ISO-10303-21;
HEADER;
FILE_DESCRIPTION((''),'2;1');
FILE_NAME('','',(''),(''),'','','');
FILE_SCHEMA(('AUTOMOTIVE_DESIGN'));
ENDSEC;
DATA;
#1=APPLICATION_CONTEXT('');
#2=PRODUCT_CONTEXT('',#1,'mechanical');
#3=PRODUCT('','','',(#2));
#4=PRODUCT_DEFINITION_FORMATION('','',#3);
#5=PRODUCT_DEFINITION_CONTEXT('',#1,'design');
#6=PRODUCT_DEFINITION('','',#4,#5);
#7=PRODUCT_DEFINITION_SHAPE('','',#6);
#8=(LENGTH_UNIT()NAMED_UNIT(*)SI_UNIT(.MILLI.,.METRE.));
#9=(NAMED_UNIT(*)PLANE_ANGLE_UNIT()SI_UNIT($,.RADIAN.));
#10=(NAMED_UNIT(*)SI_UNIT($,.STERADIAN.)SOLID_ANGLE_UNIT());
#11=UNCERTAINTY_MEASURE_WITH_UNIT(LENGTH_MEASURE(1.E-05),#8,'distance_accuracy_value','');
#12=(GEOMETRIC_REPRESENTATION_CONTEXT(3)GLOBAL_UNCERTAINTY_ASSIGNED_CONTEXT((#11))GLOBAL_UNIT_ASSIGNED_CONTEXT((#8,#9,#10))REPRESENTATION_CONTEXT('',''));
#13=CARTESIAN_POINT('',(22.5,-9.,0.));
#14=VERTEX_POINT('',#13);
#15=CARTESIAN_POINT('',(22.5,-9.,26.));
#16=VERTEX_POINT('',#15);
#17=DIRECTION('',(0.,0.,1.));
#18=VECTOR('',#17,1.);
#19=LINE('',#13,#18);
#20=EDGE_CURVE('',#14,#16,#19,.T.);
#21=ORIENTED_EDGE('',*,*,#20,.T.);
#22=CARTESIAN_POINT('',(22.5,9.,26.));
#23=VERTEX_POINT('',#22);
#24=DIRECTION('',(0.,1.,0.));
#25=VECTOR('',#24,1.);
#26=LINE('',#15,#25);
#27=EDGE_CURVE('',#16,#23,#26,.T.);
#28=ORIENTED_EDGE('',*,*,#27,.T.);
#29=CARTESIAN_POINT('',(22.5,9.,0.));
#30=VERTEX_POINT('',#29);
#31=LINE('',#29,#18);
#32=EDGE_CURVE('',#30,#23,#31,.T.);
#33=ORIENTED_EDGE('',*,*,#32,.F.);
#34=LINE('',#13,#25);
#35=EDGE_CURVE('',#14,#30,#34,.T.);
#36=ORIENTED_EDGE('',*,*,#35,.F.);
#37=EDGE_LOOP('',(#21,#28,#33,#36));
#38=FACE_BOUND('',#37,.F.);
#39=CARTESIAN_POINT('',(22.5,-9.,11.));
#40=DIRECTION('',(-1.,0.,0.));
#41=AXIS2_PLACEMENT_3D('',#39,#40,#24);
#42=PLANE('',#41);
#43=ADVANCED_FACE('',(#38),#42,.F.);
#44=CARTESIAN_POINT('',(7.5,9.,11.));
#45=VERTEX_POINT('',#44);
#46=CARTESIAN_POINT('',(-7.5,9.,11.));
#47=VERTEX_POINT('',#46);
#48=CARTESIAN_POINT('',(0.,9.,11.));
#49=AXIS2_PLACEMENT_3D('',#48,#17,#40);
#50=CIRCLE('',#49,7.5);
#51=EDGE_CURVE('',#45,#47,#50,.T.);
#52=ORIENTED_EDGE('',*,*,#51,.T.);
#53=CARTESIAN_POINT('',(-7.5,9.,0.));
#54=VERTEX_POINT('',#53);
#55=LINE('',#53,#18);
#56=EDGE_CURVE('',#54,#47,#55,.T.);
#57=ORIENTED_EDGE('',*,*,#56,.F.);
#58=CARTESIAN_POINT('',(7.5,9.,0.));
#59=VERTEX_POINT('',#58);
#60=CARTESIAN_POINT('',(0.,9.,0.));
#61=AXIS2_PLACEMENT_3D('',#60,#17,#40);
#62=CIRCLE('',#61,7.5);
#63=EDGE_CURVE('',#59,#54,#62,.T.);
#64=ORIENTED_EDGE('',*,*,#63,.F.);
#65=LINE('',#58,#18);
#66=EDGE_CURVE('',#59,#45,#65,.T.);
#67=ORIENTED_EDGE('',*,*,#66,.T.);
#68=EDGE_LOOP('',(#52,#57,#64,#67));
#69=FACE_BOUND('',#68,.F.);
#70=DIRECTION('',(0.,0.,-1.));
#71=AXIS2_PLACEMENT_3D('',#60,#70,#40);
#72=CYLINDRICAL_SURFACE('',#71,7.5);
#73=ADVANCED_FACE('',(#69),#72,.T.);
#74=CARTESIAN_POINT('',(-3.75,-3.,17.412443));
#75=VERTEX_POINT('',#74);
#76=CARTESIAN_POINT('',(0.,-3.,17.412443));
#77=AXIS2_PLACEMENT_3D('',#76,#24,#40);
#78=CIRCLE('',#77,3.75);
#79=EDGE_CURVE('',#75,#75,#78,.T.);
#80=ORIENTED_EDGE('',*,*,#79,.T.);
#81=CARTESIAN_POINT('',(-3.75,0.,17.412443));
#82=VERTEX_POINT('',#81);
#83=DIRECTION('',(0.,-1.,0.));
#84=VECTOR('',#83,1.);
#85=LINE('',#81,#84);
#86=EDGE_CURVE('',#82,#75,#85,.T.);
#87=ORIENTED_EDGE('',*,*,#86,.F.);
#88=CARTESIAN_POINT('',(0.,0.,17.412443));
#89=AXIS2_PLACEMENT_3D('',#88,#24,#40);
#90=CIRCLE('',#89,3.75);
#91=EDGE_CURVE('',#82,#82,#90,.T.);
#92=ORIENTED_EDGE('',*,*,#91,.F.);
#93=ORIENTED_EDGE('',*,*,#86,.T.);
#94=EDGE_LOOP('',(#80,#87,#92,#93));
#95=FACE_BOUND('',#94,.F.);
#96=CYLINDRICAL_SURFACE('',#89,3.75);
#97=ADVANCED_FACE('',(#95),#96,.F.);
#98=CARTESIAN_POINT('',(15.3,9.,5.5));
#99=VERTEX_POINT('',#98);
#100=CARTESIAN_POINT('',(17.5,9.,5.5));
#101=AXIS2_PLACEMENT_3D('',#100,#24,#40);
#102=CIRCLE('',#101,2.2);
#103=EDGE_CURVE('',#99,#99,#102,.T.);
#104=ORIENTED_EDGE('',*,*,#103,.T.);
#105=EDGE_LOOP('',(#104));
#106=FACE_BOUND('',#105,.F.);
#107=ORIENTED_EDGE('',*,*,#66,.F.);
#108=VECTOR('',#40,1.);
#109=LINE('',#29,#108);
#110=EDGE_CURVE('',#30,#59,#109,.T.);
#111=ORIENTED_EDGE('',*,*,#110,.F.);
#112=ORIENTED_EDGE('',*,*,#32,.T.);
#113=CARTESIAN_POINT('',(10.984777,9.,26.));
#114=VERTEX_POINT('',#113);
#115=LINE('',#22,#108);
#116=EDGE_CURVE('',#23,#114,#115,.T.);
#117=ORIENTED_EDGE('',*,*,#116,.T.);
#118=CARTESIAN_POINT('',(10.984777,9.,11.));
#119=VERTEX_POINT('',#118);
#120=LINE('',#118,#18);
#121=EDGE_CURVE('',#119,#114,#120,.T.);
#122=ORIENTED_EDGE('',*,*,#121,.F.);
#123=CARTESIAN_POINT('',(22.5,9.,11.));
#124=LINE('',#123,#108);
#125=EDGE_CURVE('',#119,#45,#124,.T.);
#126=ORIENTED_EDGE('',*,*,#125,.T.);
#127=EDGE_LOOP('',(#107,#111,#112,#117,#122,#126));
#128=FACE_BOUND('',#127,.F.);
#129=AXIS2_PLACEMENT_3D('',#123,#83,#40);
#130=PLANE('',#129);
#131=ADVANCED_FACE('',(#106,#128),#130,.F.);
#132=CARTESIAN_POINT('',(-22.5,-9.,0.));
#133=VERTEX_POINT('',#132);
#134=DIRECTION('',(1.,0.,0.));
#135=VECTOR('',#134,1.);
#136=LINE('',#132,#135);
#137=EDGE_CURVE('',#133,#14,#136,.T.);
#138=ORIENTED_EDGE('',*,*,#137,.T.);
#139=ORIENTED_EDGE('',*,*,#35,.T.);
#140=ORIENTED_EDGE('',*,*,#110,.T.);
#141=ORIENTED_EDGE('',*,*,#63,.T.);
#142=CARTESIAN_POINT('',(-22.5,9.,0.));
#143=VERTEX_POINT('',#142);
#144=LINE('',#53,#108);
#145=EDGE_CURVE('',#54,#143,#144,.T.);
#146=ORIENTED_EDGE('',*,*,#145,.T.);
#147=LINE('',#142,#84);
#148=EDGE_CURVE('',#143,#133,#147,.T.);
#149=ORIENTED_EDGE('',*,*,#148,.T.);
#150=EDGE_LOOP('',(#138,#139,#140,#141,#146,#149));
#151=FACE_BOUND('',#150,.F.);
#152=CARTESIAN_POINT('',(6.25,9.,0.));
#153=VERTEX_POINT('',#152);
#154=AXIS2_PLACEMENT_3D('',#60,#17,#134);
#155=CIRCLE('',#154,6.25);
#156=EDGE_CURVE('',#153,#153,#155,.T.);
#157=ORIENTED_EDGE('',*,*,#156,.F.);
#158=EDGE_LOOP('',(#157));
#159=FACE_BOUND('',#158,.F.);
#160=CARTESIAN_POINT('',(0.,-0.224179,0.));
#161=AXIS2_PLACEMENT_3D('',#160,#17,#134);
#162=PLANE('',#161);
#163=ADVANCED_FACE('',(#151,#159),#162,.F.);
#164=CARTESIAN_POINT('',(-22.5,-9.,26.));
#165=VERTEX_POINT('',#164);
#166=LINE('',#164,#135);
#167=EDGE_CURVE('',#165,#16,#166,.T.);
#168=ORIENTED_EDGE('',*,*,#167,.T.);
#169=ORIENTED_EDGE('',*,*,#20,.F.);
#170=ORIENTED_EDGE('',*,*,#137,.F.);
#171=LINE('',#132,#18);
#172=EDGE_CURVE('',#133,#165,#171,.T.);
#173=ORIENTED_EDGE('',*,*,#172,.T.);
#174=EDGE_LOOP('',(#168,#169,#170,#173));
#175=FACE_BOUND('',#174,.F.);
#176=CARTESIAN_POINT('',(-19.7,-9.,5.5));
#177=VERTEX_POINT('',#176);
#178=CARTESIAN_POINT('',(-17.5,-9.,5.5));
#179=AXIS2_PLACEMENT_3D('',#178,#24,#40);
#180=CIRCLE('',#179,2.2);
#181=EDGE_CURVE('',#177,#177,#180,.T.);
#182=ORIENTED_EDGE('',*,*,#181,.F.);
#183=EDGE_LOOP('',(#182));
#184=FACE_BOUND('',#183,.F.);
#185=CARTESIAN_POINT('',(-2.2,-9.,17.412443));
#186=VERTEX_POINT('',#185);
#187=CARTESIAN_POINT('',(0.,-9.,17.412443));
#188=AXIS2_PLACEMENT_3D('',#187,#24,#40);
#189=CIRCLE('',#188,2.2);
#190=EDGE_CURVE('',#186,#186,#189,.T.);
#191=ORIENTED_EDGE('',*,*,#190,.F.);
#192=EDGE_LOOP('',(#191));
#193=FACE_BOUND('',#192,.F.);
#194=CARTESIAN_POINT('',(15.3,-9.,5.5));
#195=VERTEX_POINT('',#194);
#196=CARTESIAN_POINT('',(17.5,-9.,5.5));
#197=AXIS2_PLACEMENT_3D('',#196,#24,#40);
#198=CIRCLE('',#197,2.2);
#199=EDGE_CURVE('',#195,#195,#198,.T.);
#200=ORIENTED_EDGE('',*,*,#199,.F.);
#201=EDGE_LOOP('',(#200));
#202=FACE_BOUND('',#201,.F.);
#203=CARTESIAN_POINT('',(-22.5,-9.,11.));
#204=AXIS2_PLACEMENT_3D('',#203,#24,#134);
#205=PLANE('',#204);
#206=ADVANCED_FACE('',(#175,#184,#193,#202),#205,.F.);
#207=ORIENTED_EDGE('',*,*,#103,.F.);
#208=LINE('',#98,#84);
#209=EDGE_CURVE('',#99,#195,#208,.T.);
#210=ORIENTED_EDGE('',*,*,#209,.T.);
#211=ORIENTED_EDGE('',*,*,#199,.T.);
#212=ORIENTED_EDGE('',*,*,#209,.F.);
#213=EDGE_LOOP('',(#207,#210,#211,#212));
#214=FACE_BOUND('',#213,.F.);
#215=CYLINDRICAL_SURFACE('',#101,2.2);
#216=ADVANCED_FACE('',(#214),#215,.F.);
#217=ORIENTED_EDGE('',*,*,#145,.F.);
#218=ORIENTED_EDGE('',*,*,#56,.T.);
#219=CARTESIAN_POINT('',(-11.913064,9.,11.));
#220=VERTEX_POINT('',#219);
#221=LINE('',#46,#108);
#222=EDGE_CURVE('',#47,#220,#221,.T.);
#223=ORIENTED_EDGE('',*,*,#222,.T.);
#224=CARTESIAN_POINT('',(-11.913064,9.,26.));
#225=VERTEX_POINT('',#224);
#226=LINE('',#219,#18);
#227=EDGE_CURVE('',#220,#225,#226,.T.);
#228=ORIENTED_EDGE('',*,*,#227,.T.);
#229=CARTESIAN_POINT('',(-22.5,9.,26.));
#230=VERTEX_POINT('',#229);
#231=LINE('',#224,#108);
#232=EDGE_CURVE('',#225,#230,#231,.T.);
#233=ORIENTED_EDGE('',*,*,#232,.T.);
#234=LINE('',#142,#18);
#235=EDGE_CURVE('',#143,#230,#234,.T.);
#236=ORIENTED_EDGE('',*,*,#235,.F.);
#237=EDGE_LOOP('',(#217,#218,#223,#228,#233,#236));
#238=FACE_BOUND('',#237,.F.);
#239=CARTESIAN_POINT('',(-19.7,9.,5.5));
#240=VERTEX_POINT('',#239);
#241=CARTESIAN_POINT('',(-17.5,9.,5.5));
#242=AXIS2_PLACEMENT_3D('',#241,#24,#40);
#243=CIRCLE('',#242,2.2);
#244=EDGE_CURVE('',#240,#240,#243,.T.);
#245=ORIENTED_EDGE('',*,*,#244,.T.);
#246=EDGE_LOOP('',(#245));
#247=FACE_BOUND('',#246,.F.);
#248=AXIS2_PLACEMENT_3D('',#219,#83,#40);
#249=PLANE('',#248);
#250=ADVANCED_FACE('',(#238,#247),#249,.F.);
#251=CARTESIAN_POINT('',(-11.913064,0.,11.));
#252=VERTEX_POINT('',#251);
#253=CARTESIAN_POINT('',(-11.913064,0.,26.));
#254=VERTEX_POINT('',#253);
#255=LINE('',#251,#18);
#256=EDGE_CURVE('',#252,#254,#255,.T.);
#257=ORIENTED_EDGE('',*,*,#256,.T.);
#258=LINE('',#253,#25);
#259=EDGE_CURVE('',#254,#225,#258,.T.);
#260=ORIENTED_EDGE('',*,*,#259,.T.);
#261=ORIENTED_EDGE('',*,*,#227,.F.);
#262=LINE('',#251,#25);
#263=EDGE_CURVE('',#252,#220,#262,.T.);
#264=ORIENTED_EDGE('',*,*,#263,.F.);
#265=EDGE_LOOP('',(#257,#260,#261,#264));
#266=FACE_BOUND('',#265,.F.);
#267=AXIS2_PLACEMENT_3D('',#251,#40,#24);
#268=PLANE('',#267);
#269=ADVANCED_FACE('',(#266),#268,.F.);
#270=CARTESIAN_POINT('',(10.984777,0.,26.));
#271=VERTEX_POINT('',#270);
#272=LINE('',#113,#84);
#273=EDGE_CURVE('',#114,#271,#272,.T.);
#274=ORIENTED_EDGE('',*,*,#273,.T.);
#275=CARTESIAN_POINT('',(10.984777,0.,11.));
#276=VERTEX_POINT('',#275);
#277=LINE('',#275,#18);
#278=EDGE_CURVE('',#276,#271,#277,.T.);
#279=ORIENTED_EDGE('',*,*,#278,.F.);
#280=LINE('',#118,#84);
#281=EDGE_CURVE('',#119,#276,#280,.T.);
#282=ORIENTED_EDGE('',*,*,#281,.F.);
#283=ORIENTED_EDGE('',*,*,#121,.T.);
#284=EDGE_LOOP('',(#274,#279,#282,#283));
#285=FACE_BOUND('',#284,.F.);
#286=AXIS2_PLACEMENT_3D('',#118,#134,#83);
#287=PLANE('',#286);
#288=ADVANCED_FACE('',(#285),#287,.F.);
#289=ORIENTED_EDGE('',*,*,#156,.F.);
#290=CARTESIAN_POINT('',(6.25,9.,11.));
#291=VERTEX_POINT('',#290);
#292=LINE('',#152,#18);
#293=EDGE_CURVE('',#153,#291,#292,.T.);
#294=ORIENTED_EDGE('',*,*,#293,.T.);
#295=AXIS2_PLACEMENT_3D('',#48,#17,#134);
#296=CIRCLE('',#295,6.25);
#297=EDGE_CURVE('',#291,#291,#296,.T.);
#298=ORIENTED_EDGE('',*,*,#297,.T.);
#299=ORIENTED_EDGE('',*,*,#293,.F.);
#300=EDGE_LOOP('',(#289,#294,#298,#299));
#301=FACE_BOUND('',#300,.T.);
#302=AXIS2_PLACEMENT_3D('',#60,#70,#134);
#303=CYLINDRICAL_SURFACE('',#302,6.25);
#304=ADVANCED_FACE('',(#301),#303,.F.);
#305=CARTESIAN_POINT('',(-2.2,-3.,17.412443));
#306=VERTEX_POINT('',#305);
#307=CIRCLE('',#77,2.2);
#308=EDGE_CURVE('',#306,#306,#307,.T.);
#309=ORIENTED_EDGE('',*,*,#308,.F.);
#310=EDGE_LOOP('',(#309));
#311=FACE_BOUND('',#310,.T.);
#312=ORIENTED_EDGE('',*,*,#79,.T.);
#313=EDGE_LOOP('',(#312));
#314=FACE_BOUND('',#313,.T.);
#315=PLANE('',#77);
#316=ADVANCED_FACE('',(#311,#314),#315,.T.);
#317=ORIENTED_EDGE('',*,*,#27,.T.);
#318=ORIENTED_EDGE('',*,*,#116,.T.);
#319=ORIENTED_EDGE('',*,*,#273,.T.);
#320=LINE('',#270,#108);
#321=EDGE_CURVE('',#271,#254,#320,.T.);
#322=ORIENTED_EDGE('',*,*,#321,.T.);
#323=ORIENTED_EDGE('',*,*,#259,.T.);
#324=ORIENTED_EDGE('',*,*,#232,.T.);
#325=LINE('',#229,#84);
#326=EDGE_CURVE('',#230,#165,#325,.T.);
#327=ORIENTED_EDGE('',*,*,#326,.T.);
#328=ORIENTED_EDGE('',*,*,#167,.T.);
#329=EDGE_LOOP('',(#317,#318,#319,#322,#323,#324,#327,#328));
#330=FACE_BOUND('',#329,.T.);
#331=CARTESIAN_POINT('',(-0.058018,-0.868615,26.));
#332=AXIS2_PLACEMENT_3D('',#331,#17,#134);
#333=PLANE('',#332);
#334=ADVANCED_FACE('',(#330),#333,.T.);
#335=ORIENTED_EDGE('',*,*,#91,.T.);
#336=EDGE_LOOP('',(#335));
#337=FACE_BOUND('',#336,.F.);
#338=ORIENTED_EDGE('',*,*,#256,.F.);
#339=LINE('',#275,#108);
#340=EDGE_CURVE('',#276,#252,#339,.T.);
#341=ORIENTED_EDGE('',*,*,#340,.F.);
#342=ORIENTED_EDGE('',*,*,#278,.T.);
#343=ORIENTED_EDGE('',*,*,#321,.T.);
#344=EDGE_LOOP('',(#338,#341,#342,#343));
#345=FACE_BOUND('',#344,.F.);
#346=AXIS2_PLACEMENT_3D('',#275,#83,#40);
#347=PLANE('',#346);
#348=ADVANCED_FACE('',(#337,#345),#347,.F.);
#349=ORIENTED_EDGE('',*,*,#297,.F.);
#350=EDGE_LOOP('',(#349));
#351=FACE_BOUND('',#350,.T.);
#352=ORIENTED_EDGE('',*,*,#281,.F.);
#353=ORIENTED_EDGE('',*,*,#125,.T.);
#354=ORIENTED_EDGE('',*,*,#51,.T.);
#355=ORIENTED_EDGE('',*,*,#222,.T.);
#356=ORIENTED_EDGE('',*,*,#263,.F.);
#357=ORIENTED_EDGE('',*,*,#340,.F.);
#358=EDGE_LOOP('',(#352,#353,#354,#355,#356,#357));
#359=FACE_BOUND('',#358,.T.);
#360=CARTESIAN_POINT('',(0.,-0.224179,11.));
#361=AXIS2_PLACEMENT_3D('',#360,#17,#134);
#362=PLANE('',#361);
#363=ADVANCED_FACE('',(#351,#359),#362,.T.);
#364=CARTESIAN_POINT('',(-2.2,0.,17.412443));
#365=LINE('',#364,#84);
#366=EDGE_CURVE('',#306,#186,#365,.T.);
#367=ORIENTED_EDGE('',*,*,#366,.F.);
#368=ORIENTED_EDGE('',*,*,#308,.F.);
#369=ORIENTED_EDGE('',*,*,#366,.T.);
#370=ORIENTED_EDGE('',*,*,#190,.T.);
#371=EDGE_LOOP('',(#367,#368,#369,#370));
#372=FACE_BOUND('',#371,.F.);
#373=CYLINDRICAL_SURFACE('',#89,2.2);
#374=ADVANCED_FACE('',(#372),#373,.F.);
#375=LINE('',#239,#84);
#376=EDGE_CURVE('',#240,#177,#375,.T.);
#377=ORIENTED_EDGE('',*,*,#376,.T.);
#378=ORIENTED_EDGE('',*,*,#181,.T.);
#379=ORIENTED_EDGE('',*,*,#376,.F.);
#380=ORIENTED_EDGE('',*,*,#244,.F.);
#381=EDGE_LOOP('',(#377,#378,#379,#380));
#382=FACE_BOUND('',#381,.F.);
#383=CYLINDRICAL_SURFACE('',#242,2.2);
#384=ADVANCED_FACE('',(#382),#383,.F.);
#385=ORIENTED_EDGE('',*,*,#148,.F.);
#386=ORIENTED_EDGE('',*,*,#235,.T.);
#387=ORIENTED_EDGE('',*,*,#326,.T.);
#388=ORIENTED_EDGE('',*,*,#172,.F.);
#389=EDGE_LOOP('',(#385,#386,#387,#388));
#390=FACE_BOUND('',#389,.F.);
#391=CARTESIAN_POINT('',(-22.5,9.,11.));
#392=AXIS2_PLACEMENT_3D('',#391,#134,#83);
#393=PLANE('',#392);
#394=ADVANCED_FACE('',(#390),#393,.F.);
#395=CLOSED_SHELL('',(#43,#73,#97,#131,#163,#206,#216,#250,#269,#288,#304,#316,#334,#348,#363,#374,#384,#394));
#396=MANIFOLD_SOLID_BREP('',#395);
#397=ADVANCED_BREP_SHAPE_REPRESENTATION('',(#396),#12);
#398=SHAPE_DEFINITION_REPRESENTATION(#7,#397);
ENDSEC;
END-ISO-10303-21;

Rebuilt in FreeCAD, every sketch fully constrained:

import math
import FreeCAD as App
import Part
import Sketcher

V = App.Vector


def add_polygon(sketch, points):
    """Adds a closed chain of lines whose ends are joined by coincident constraints."""
    first, n = sketch.GeometryCount, len(points)
    for a, b in zip(points, points[1:] + points[:1]):
        sketch.addGeometry(Part.LineSegment(App.Vector(*a, 0), App.Vector(*b, 0)), False)
    for i in range(n):
        sketch.addConstraint(Sketcher.Constraint("Coincident", first + i, 2, first + (i + 1) % n, 1))

doc = App.newDocument("Part")
body = doc.addObject("PartDesign::Body", "Body")

# Sketch on XY plane
sketch1 = doc.addObject("Sketcher::SketchObject", "Sketch")
body.addObject(sketch1)
sketch1.AttachmentSupport = (doc.XY_Plane, [""])
sketch1.MapMode = "FlatFace"
sketch1.addGeometry(Part.LineSegment(V(-8, 9, 0), V(-22, 9, 0)), False)
sketch1.addGeometry(Part.LineSegment(V(-22, 9, 0), V(-22, -9, 0)), False)
sketch1.addGeometry(Part.LineSegment(V(-22, -9, 0), V(22, -9, 0)), False)
sketch1.addGeometry(Part.LineSegment(V(22, -9, 0), V(22, 9, 0)), False)
sketch1.addGeometry(Part.LineSegment(V(22, 9, 0), V(8, 9, 0)), False)
sketch1.addGeometry(Part.ArcOfCircle(Part.Circle(V(0, 9, 0), V(0, 0, 1), 8), math.radians(0), math.radians(180)), False)
sketch1.addGeometry(Part.Circle(V(0, 9, 0), V(0, 0, 1), 6), False)
sketch1.addConstraint(Sketcher.Constraint("Coincident", 0, 2, 1, 1))
sketch1.addConstraint(Sketcher.Constraint("Coincident", 1, 2, 2, 1))
sketch1.addConstraint(Sketcher.Constraint("Coincident", 2, 2, 3, 1))
sketch1.addConstraint(Sketcher.Constraint("Coincident", 3, 2, 4, 1))
sketch1.addConstraint(Sketcher.Constraint("Coincident", 4, 2, 5, 1))
sketch1.addConstraint(Sketcher.Constraint("Coincident", 5, 2, 0, 1))
sketch1.addConstraint(Sketcher.Constraint("Horizontal", 0))
sketch1.addConstraint(Sketcher.Constraint("Vertical", 1))
sketch1.addConstraint(Sketcher.Constraint("Horizontal", 2))
sketch1.addConstraint(Sketcher.Constraint("Vertical", 3))
sketch1.addConstraint(Sketcher.Constraint("Horizontal", 4))
sketch1.addConstraint(Sketcher.Constraint("Coincident", 6, 3, 5, 3))
sketch1.addConstraint(Sketcher.Constraint("Symmetric", 0, 2, 2, 2, -1, 1))
sketch1.addConstraint(Sketcher.Constraint("Symmetric", 4, 2, 5, 2, -2))
sketch1.addConstraint(Sketcher.Constraint("Horizontal", 6, 3, 0, 2))
sketch1.addConstraint(Sketcher.Constraint("Diameter", 6, 12.5))
sketch1.addConstraint(Sketcher.Constraint("Radius", 5, 7.5))
sketch1.addConstraint(Sketcher.Constraint("DistanceX", 0, 2, 0, 1, 15.0))
sketch1.addConstraint(Sketcher.Constraint("DistanceY", 1, 2, 1, 1, 18.0))
pad1 = doc.addObject("PartDesign::Pad", "Pad")
body.addObject(pad1)
pad1.Profile = sketch1
pad1.Length = 11

# Sketch on XZ plane
sketch2 = doc.addObject("Sketcher::SketchObject", "Sketch001")
body.addObject(sketch2)
sketch2.AttachmentSupport = (doc.XZ_Plane, [""])
sketch2.MapMode = "FlatFace"
sketch2.AttachmentOffset = App.Placement(V(0, 0, -9), App.Rotation())
sketch2.addGeometry(Part.Circle(V(-17.5, 5.5, 0), V(0, 0, 1), 2.2), False)
sketch2.addGeometry(Part.Circle(V(17.5, 5.5, 0), V(0, 0, 1), 2.2), False)
sketch2.addConstraint(Sketcher.Constraint("Equal", 0, 1))
sketch2.addConstraint(Sketcher.Constraint("Symmetric", 0, 3, 1, 3, -2))
sketch2.addConstraint(Sketcher.Constraint("Diameter", 0, 4.4))
sketch2.addConstraint(Sketcher.Constraint("DistanceX", 0, 3, 1, 3, 35.0))
sketch2.addConstraint(Sketcher.Constraint("DistanceY", -1, 1, 0, 3, 5.5))
pocket1 = doc.addObject("PartDesign::Pocket", "Pocket")
body.addObject(pocket1)
pocket1.Profile = sketch2
pocket1.Type = "ThroughAll"
pocket1.Reversed = True

# Sketch on XY plane
sketch3 = doc.addObject("Sketcher::SketchObject", "Sketch002")
body.addObject(sketch3)
sketch3.AttachmentSupport = (doc.XY_Plane, [""])
sketch3.MapMode = "FlatFace"
sketch3.AttachmentOffset = App.Placement(V(0, 0, 11), App.Rotation())
add_polygon(sketch3, [(-12, 9), (-22, 9), (-22, -9), (22, -9), (22, 9), (11, 9), (11, 0), (-12, 0)])  # lines 0-7
sketch3.addConstraint(Sketcher.Constraint("Horizontal", 0))
sketch3.addConstraint(Sketcher.Constraint("Vertical", 1))
sketch3.addConstraint(Sketcher.Constraint("Horizontal", 2))
sketch3.addConstraint(Sketcher.Constraint("Vertical", 3))
sketch3.addConstraint(Sketcher.Constraint("Horizontal", 4))
sketch3.addConstraint(Sketcher.Constraint("Vertical", 5))
sketch3.addConstraint(Sketcher.Constraint("Horizontal", 6))
sketch3.addConstraint(Sketcher.Constraint("Vertical", 7))
sketch3.addConstraint(Sketcher.Constraint("Symmetric", 0, 2, 2, 2, -1, 1))
sketch3.addConstraint(Sketcher.Constraint("PointOnObject", 5, 2, -1))
sketch3.addConstraint(Sketcher.Constraint("Horizontal", 0, 2, 3, 2))
sketch3.addConstraint(Sketcher.Constraint("DistanceX", 2, 1, 2, 2, 45.0))
sketch3.addConstraint(Sketcher.Constraint("DistanceY", 1, 2, 1, 1, 18.0))
sketch3.addConstraint(Sketcher.Constraint("DistanceX", 6, 2, 6, 1, 22.897841))
sketch3.addConstraint(Sketcher.Constraint("DistanceX", 0, 2, 0, 1, 10.586936))
pad2 = doc.addObject("PartDesign::Pad", "Pad001")
body.addObject(pad2)
pad2.Profile = sketch3
pad2.Length = 15

# Sketch on XZ plane
sketch4 = doc.addObject("Sketcher::SketchObject", "Sketch003")
body.addObject(sketch4)
sketch4.AttachmentSupport = (doc.XZ_Plane, [""])
sketch4.MapMode = "FlatFace"
sketch4.addGeometry(Part.Circle(V(0, 17.4, 0), V(0, 0, 1), 3.8), False)
sketch4.addGeometry(Part.Circle(V(0, 17.4, 0), V(0, 0, 1), 2.2), False)
sketch4.addConstraint(Sketcher.Constraint("Coincident", 1, 3, 0, 3))
sketch4.addConstraint(Sketcher.Constraint("PointOnObject", 0, 3, -2))
sketch4.addConstraint(Sketcher.Constraint("Diameter", 0, 7.5))
sketch4.addConstraint(Sketcher.Constraint("Diameter", 1, 4.4))
sketch4.addConstraint(Sketcher.Constraint("DistanceY", -1, 1, 0, 3, 17.412443))
pocket2 = doc.addObject("PartDesign::Pocket", "Pocket001")
body.addObject(pocket2)
pocket2.Profile = sketch4
pocket2.Length = 3
pocket2.Reversed = True

# Sketch on XZ plane
sketch5 = doc.addObject("Sketcher::SketchObject", "Sketch004")
body.addObject(sketch5)
sketch5.AttachmentSupport = (doc.XZ_Plane, [""])
sketch5.MapMode = "FlatFace"
sketch5.addGeometry(Part.Circle(V(0, 17.4, 0), V(0, 0, 1), 2.2), False)
sketch5.addConstraint(Sketcher.Constraint("PointOnObject", 0, 3, -2))
sketch5.addConstraint(Sketcher.Constraint("Diameter", 0, 4.4))
sketch5.addConstraint(Sketcher.Constraint("DistanceY", -1, 1, 0, 3, 17.412443))
pocket3 = doc.addObject("PartDesign::Pocket", "Pocket002")
body.addObject(pocket3)
pocket3.Profile = sketch5
pocket3.Type = "ThroughAll"
pocket3.Reversed = True

doc.recompute()
